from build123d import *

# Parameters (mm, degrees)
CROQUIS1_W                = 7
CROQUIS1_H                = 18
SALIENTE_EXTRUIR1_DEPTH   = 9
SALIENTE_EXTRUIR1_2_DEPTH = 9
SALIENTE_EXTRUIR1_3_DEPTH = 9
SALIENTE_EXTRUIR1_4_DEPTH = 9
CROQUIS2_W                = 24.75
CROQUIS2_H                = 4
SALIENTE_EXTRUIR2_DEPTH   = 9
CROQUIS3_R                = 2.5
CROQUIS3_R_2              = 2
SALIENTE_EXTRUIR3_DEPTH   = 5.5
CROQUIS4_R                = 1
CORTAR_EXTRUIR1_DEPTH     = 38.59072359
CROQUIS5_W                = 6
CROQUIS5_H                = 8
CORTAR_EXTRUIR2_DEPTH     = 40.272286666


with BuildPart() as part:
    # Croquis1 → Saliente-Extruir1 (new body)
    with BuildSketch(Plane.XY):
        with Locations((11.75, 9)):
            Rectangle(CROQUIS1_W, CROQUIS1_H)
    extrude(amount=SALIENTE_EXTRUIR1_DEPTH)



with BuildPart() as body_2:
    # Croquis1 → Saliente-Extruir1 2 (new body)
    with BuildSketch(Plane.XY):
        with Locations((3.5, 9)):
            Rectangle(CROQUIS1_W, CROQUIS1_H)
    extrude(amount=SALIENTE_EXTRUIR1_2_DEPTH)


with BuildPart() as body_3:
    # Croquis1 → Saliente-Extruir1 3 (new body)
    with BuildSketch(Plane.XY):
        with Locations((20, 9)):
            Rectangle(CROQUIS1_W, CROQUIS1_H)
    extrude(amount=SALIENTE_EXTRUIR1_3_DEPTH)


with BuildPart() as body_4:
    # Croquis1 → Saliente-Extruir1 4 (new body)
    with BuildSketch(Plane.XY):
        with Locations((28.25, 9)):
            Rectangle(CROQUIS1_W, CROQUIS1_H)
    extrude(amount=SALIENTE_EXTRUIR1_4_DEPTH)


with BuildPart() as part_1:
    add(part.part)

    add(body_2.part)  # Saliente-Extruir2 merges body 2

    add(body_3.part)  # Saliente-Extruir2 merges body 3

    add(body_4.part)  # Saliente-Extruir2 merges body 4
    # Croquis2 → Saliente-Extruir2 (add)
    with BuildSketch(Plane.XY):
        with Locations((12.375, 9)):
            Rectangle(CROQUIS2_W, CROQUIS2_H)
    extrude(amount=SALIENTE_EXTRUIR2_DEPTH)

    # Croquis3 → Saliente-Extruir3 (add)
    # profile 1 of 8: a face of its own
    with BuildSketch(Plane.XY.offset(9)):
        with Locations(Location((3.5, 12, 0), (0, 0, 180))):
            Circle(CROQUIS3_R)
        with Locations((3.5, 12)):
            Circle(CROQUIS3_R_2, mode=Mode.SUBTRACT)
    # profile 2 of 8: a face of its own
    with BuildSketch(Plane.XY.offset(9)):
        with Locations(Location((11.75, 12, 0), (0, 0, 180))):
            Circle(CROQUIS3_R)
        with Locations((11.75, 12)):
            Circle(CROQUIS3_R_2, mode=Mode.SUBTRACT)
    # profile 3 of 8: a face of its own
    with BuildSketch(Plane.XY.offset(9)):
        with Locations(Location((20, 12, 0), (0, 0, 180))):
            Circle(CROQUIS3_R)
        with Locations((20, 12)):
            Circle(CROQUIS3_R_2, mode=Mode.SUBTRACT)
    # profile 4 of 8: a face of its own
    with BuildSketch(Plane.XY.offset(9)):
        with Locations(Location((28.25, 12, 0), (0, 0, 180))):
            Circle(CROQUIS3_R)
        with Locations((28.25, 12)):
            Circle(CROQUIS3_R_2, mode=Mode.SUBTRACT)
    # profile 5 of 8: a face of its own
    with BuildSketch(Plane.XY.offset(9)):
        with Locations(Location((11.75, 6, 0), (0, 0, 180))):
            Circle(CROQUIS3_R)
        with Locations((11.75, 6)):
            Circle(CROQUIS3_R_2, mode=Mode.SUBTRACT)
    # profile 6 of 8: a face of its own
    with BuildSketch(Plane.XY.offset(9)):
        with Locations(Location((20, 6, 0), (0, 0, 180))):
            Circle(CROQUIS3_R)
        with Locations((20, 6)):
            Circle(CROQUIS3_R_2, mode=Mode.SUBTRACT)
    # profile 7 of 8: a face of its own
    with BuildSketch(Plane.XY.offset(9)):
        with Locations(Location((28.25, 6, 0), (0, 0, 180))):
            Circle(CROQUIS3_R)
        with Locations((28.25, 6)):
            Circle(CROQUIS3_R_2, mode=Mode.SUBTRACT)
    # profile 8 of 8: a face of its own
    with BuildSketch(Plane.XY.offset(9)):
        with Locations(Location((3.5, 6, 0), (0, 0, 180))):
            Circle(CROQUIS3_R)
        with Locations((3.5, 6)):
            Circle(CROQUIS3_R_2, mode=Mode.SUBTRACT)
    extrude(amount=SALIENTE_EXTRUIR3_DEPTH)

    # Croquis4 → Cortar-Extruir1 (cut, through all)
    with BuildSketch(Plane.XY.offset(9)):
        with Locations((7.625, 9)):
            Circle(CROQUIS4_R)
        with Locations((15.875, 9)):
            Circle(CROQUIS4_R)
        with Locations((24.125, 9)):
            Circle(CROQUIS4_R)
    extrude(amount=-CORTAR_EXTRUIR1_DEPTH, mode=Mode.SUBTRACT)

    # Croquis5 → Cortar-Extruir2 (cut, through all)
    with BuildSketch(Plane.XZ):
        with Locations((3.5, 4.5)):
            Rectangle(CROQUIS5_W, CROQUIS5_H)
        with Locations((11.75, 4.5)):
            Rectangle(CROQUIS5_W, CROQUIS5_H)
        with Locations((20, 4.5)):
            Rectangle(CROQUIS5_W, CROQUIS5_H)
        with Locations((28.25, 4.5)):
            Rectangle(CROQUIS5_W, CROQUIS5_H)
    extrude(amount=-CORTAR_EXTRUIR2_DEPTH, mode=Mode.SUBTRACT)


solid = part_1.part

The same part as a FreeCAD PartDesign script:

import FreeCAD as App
import Part
import Sketcher

V = App.Vector
Q = App.Units.Quantity


def add_polygon(sketch, points):
    """Adds a closed chain of lines whose ends are joined by coincident constraints."""
    first, n = sketch.GeometryCount, len(points)
    for a, b in zip(points, points[1:] + points[:1]):
        sketch.addGeometry(Part.LineSegment(App.Vector(*a, 0), App.Vector(*b, 0)), False)
    for i in range(n):
        sketch.addConstraint(Sketcher.Constraint("Coincident", first + i, 2, first + (i + 1) % n, 1))

doc = App.newDocument("Part")
body = doc.addObject("PartDesign::Body", "Body")

sketch1 = body.newObject("Sketcher::SketchObject", "Sketch")
sketch1.AttachmentSupport = (doc.getObject("XY_Plane"), [""])
sketch1.MapMode = "FlatFace"
add_polygon(sketch1, [(8, 18), (8, 0), (15, 0), (15, 18)])
sketch1.addConstraint([
    Sketcher.Constraint("Vertical", 0),
    Sketcher.Constraint("Horizontal", 1),
    Sketcher.Constraint("Vertical", 2),
    Sketcher.Constraint("Horizontal", 3),
    Sketcher.Constraint("PointOnObject", 0, 2, -1),
    Sketcher.Constraint("DistanceX", 1, 1, 1, 2, Q("7 mm")),
    Sketcher.Constraint("DistanceY", 0, 2, 0, 1, Q("18 mm")),
    Sketcher.Constraint("DistanceX", -1, 1, 0, 2, Q("8.25 mm")),
])
pad1 = body.newObject("PartDesign::Pad", "Pad")
pad1.Profile = sketch1
pad1.Length = 9
body2 = doc.addObject("PartDesign::Body", "Body001")

sketch2 = body2.newObject("Sketcher::SketchObject", "Sketch001")
sketch2.AttachmentSupport = (doc.getObject("XY_Plane001"), [""])
sketch2.MapMode = "FlatFace"
add_polygon(sketch2, [(0, 18), (0, 0), (7, 0), (7, 18)])
sketch2.addConstraint([
    Sketcher.Constraint("Vertical", 0),
    Sketcher.Constraint("Horizontal", 1),
    Sketcher.Constraint("Vertical", 2),
    Sketcher.Constraint("Horizontal", 3),
    Sketcher.Constraint("Coincident", 0, 2, -1, 1),
    Sketcher.Constraint("DistanceX", 1, 1, 1, 2, Q("7 mm")),
    Sketcher.Constraint("DistanceY", 0, 2, 0, 1, Q("18 mm")),
])
pad2 = body2.newObject("PartDesign::Pad", "Pad001")
pad2.Profile = sketch2
pad2.Length = 9
body3 = doc.addObject("PartDesign::Body", "Body002")

sketch3 = body3.newObject("Sketcher::SketchObject", "Sketch002")
sketch3.AttachmentSupport = (doc.getObject("XY_Plane002"), [""])
sketch3.MapMode = "FlatFace"
add_polygon(sketch3, [(16, 18), (16, 0), (24, 0), (24, 18)])
sketch3.addConstraint([
    Sketcher.Constraint("Vertical", 0),
    Sketcher.Constraint("Horizontal", 1),
    Sketcher.Constraint("Vertical", 2),
    Sketcher.Constraint("Horizontal", 3),
    Sketcher.Constraint("PointOnObject", 0, 2, -1),
    Sketcher.Constraint("DistanceX", 1, 1, 1, 2, Q("7 mm")),
    Sketcher.Constraint("DistanceY", 0, 2, 0, 1, Q("18 mm")),
    Sketcher.Constraint("DistanceX", -1, 1, 0, 2, Q("16.5 mm")),
])
pad3 = body3.newObject("PartDesign::Pad", "Pad002")
pad3.Profile = sketch3
pad3.Length = 9
body4 = doc.addObject("PartDesign::Body", "Body003")

sketch4 = body4.newObject("Sketcher::SketchObject", "Sketch003")
sketch4.AttachmentSupport = (doc.getObject("XY_Plane003"), [""])
sketch4.MapMode = "FlatFace"
add_polygon(sketch4, [(25, 18), (25, 0), (32, 0), (32, 18)])
sketch4.addConstraint([
    Sketcher.Constraint("Vertical", 0),
    Sketcher.Constraint("Horizontal", 1),
    Sketcher.Constraint("Vertical", 2),
    Sketcher.Constraint("Horizontal", 3),
    Sketcher.Constraint("PointOnObject", 0, 2, -1),
    Sketcher.Constraint("DistanceX", 1, 1, 1, 2, Q("7 mm")),
    Sketcher.Constraint("DistanceY", 0, 2, 0, 1, Q("18 mm")),
    Sketcher.Constraint("DistanceX", -1, 1, 0, 2, Q("24.75 mm")),
])
pad4 = body4.newObject("PartDesign::Pad", "Pad003")
pad4.Profile = sketch4
pad4.Length = 9
body.AllowCompound = True
doc.recompute()

boolean = body.newObject("PartDesign::Boolean", "Boolean")
boolean.Type = "Fuse"
boolean.addObjects([body2])
doc.recompute()

boolean2 = body.newObject("PartDesign::Boolean", "Boolean001")
boolean2.Type = "Fuse"
boolean2.addObjects([body3])
doc.recompute()

boolean3 = body.newObject("PartDesign::Boolean", "Boolean002")
boolean3.Type = "Fuse"
boolean3.addObjects([body4])

sketch5 = body.newObject("Sketcher::SketchObject", "Sketch004")
sketch5.AttachmentSupport = (doc.getObject("XY_Plane"), [""])
sketch5.MapMode = "FlatFace"
add_polygon(sketch5, [(0, 11), (0, 7), (24.8, 7), (24.8, 11)])
sketch5.addConstraint([
    Sketcher.Constraint("Vertical", 0),
    Sketcher.Constraint("Horizontal", 1),
    Sketcher.Constraint("Vertical", 2),
    Sketcher.Constraint("Horizontal", 3),
    Sketcher.Constraint("PointOnObject", 0, 2, -2),
    Sketcher.Constraint("DistanceY", 0, 2, 0, 1, Q("4 mm")),
    Sketcher.Constraint("DistanceY", -1, 1, 0, 2, Q("7 mm")),
    Sketcher.Constraint("DistanceX", 1, 1, 1, 2, Q("24.75 mm")),
])
pad5 = body.newObject("PartDesign::Pad", "Pad004")
pad5.Profile = sketch5
pad5.Length = 9

sketch6 = body.newObject("Sketcher::SketchObject", "Sketch005")
sketch6.AttachmentSupport = (doc.getObject("XY_Plane"), [""])
sketch6.MapMode = "FlatFace"
sketch6.AttachmentOffset = App.Placement(V(0, 0, 9), App.Rotation())
sketch6.addGeometry([
    Part.Circle(V(3.5, 12, 0), V(0, 0, 1), 2.5),
    Part.Circle(V(3.5, 12, 0), V(0, 0, 1), 2),
    Part.Circle(V(11.8, 12, 0), V(0, 0, 1), 2.5),
    Part.Circle(V(11.8, 12, 0), V(0, 0, 1), 2),
    Part.Circle(V(20, 12, 0), V(0, 0, 1), 2.5),
    Part.Circle(V(20, 12, 0), V(0, 0, 1), 2),
    Part.Circle(V(28.2, 12, 0), V(0, 0, 1), 2.5),
    Part.Circle(V(28.2, 12, 0), V(0, 0, 1), 2),
    Part.Circle(V(11.8, 6, 0), V(0, 0, 1), 2.5),
    Part.Circle(V(11.8, 6, 0), V(0, 0, 1), 2),
    Part.Circle(V(20, 6, 0), V(0, 0, 1), 2.5),
    Part.Circle(V(20, 6, 0), V(0, 0, 1), 2),
    Part.Circle(V(28.2, 6, 0), V(0, 0, 1), 2.5),
    Part.Circle(V(28.2, 6, 0), V(0, 0, 1), 2),
    Part.Circle(V(3.5, 6, 0), V(0, 0, 1), 2.5),
    Part.Circle(V(3.5, 6, 0), V(0, 0, 1), 2),
], False)
sketch6.addConstraint([
    Sketcher.Constraint("Coincident", 1, 3, 0, 3),
    Sketcher.Constraint("Coincident", 3, 3, 2, 3),
    Sketcher.Constraint("Coincident", 5, 3, 4, 3),
    Sketcher.Constraint("Coincident", 7, 3, 6, 3),
    Sketcher.Constraint("Coincident", 9, 3, 8, 3),
    Sketcher.Constraint("Coincident", 11, 3, 10, 3),
    Sketcher.Constraint("Coincident", 13, 3, 12, 3),
    Sketcher.Constraint("Coincident", 15, 3, 14, 3),
    Sketcher.Constraint("Equal", 0, 2),
    Sketcher.Constraint("Equal", 1, 3),
    Sketcher.Constraint("Equal", 2, 4),
    Sketcher.Constraint("Equal", 3, 5),
    Sketcher.Constraint("Equal", 4, 6),
    Sketcher.Constraint("Equal", 5, 7),
    Sketcher.Constraint("Equal", 6, 8),
    Sketcher.Constraint("Equal", 7, 9),
    Sketcher.Constraint("Equal", 8, 10),
    Sketcher.Constraint("Equal", 9, 11),
    Sketcher.Constraint("Equal", 10, 12),
    Sketcher.Constraint("Equal", 11, 13),
    Sketcher.Constraint("Equal", 12, 14),
    Sketcher.Constraint("Equal", 13, 15),
    Sketcher.Constraint("Horizontal", 1, 3, 2, 3),
    Sketcher.Constraint("Horizontal", 3, 3, 4, 3),
    Sketcher.Constraint("Horizontal", 5, 3, 6, 3),
    Sketcher.Constraint("Horizontal", 9, 3, 10, 3),
    Sketcher.Constraint("Horizontal", 11, 3, 12, 3),
    Sketcher.Constraint("Horizontal", 13, 3, 14, 3),
    Sketcher.Constraint("Vertical", 3, 3, 8, 3),
    Sketcher.Constraint("Vertical", 5, 3, 10, 3),
    Sketcher.Constraint("Vertical", 7, 3, 12, 3),
    Sketcher.Constraint("Vertical", 1, 3, 14, 3),
    Sketcher.Constraint("Diameter", 0, Q("5 mm")),
    Sketcher.Constraint("Diameter", 1, Q("4 mm")),
    Sketcher.Constraint("DistanceY", -1, 1, 0, 3, Q("12 mm")),
    Sketcher.Constraint("DistanceX", -1, 1, 4, 3, Q("20 mm")),
    Sketcher.Constraint("DistanceY", -1, 1, 8, 3, Q("6 mm")),
    Sketcher.Constraint("DistanceX", -1, 1, 0, 3, Q("3.5 mm")),
    Sketcher.Constraint("DistanceX", 2, 3, 6, 3, Q("16.5 mm")),
    Sketcher.Constraint("DistanceX", -1, 1, 2, 3, Q("11.75 mm")),
])
pad6 = body.newObject("PartDesign::Pad", "Pad005")
pad6.Profile = sketch6
pad6.Length = 5.5

sketch7 = body.newObject("Sketcher::SketchObject", "Sketch006")
sketch7.AttachmentSupport = (doc.getObject("XY_Plane"), [""])
sketch7.MapMode = "FlatFace"
sketch7.AttachmentOffset = App.Placement(V(0, 0, 9), App.Rotation())
sketch7.addGeometry([
    Part.Circle(V(7.6, 9, 0), V(0, 0, 1), 1),
    Part.Circle(V(15.9, 9, 0), V(0, 0, 1), 1),
    Part.Circle(V(24.1, 9, 0), V(0, 0, 1), 1),
], False)
sketch7.addConstraint([
    Sketcher.Constraint("Equal", 0, 1),
    Sketcher.Constraint("Equal", 1, 2),
    Sketcher.Constraint("Horizontal", 0, 3, 1, 3),
    Sketcher.Constraint("Horizontal", 1, 3, 2, 3),
    Sketcher.Constraint("Diameter", 0, Q("2 mm")),
    Sketcher.Constraint("DistanceY", -1, 1, 0, 3, Q("9 mm")),
    Sketcher.Constraint("DistanceX", 0, 3, 2, 3, Q("16.5 mm")),
    Sketcher.Constraint("DistanceX", 0, 3, 1, 3, Q("8.25 mm")),
    Sketcher.Constraint("DistanceX", -1, 1, 0, 3, Q("7.625 mm")),
])
pocket1 = body.newObject("PartDesign::Pocket", "Pocket")
pocket1.Profile = sketch7
pocket1.Type = "ThroughAll"

sketch8 = body.newObject("Sketcher::SketchObject", "Sketch007")
sketch8.AttachmentSupport = (doc.getObject("XZ_Plane"), [""])
sketch8.MapMode = "FlatFace"
add_polygon(sketch8, [(0, 8), (0, 0), (6, 0), (6, 8)])
add_polygon(sketch8, [(9, 8), (9, 0), (15, 0), (15, 8)])
add_polygon(sketch8, [(17, 8), (17, 0), (23, 0), (23, 8)])
add_polygon(sketch8, [(25, 8), (25, 0), (31, 0), (31, 8)])
sketch8.addConstraint([
    Sketcher.Constraint("Vertical", 0),
    Sketcher.Constraint("Horizontal", 1),
    Sketcher.Constraint("Vertical", 2),
    Sketcher.Constraint("Horizontal", 3),
    Sketcher.Constraint("Vertical", 4),
    Sketcher.Constraint("Horizontal", 5),
    Sketcher.Constraint("Vertical", 6),
    Sketcher.Constraint("Horizontal", 7),
    Sketcher.Constraint("Vertical", 8),
    Sketcher.Constraint("Horizontal", 9),
    Sketcher.Constraint("Vertical", 10),
    Sketcher.Constraint("Horizontal", 11),
    Sketcher.Constraint("Vertical", 12),
    Sketcher.Constraint("Horizontal", 13),
    Sketcher.Constraint("Vertical", 14),
    Sketcher.Constraint("Horizontal", 15),
    Sketcher.Constraint("Horizontal", 1, 2, 4, 2),
    Sketcher.Constraint("Horizontal", 3, 2, 6, 2),
    Sketcher.Constraint("Horizontal", 5, 2, 8, 2),
    Sketcher.Constraint("Horizontal", 7, 2, 10, 2),
    Sketcher.Constraint("Horizontal", 9, 2, 12, 2),
    Sketcher.Constraint("Horizontal", 11, 2, 14, 2),
    Sketcher.Constraint("Equal", 3, 5),
    Sketcher.Constraint("Equal", 7, 9),
    Sketcher.Constraint("Equal", 11, 13),
    Sketcher.Constraint("DistanceX", 1, 1, 1, 2, Q("6 mm")),
    Sketcher.Constraint("DistanceY", 0, 2, 0, 1, Q("8 mm")),
    Sketcher.Constraint("DistanceX", -1, 1, 8, 2, Q("17 mm")),
    Sketcher.Constraint("DistanceX", -1, 1, 0, 2, Q("0.5 mm")),
    Sketcher.Constraint("DistanceY", -1, 1, 0, 2, Q("0.5 mm")),
    Sketcher.Constraint("DistanceX", 5, 2, 12, 2, Q("10.5 mm")),
    Sketcher.Constraint("DistanceX", -1, 1, 4, 2, Q("8.75 mm")),
])
pocket2 = body.newObject("PartDesign::Pocket", "Pocket001")
pocket2.Profile = sketch8
pocket2.Type = "ThroughAll"

doc.recompute()
